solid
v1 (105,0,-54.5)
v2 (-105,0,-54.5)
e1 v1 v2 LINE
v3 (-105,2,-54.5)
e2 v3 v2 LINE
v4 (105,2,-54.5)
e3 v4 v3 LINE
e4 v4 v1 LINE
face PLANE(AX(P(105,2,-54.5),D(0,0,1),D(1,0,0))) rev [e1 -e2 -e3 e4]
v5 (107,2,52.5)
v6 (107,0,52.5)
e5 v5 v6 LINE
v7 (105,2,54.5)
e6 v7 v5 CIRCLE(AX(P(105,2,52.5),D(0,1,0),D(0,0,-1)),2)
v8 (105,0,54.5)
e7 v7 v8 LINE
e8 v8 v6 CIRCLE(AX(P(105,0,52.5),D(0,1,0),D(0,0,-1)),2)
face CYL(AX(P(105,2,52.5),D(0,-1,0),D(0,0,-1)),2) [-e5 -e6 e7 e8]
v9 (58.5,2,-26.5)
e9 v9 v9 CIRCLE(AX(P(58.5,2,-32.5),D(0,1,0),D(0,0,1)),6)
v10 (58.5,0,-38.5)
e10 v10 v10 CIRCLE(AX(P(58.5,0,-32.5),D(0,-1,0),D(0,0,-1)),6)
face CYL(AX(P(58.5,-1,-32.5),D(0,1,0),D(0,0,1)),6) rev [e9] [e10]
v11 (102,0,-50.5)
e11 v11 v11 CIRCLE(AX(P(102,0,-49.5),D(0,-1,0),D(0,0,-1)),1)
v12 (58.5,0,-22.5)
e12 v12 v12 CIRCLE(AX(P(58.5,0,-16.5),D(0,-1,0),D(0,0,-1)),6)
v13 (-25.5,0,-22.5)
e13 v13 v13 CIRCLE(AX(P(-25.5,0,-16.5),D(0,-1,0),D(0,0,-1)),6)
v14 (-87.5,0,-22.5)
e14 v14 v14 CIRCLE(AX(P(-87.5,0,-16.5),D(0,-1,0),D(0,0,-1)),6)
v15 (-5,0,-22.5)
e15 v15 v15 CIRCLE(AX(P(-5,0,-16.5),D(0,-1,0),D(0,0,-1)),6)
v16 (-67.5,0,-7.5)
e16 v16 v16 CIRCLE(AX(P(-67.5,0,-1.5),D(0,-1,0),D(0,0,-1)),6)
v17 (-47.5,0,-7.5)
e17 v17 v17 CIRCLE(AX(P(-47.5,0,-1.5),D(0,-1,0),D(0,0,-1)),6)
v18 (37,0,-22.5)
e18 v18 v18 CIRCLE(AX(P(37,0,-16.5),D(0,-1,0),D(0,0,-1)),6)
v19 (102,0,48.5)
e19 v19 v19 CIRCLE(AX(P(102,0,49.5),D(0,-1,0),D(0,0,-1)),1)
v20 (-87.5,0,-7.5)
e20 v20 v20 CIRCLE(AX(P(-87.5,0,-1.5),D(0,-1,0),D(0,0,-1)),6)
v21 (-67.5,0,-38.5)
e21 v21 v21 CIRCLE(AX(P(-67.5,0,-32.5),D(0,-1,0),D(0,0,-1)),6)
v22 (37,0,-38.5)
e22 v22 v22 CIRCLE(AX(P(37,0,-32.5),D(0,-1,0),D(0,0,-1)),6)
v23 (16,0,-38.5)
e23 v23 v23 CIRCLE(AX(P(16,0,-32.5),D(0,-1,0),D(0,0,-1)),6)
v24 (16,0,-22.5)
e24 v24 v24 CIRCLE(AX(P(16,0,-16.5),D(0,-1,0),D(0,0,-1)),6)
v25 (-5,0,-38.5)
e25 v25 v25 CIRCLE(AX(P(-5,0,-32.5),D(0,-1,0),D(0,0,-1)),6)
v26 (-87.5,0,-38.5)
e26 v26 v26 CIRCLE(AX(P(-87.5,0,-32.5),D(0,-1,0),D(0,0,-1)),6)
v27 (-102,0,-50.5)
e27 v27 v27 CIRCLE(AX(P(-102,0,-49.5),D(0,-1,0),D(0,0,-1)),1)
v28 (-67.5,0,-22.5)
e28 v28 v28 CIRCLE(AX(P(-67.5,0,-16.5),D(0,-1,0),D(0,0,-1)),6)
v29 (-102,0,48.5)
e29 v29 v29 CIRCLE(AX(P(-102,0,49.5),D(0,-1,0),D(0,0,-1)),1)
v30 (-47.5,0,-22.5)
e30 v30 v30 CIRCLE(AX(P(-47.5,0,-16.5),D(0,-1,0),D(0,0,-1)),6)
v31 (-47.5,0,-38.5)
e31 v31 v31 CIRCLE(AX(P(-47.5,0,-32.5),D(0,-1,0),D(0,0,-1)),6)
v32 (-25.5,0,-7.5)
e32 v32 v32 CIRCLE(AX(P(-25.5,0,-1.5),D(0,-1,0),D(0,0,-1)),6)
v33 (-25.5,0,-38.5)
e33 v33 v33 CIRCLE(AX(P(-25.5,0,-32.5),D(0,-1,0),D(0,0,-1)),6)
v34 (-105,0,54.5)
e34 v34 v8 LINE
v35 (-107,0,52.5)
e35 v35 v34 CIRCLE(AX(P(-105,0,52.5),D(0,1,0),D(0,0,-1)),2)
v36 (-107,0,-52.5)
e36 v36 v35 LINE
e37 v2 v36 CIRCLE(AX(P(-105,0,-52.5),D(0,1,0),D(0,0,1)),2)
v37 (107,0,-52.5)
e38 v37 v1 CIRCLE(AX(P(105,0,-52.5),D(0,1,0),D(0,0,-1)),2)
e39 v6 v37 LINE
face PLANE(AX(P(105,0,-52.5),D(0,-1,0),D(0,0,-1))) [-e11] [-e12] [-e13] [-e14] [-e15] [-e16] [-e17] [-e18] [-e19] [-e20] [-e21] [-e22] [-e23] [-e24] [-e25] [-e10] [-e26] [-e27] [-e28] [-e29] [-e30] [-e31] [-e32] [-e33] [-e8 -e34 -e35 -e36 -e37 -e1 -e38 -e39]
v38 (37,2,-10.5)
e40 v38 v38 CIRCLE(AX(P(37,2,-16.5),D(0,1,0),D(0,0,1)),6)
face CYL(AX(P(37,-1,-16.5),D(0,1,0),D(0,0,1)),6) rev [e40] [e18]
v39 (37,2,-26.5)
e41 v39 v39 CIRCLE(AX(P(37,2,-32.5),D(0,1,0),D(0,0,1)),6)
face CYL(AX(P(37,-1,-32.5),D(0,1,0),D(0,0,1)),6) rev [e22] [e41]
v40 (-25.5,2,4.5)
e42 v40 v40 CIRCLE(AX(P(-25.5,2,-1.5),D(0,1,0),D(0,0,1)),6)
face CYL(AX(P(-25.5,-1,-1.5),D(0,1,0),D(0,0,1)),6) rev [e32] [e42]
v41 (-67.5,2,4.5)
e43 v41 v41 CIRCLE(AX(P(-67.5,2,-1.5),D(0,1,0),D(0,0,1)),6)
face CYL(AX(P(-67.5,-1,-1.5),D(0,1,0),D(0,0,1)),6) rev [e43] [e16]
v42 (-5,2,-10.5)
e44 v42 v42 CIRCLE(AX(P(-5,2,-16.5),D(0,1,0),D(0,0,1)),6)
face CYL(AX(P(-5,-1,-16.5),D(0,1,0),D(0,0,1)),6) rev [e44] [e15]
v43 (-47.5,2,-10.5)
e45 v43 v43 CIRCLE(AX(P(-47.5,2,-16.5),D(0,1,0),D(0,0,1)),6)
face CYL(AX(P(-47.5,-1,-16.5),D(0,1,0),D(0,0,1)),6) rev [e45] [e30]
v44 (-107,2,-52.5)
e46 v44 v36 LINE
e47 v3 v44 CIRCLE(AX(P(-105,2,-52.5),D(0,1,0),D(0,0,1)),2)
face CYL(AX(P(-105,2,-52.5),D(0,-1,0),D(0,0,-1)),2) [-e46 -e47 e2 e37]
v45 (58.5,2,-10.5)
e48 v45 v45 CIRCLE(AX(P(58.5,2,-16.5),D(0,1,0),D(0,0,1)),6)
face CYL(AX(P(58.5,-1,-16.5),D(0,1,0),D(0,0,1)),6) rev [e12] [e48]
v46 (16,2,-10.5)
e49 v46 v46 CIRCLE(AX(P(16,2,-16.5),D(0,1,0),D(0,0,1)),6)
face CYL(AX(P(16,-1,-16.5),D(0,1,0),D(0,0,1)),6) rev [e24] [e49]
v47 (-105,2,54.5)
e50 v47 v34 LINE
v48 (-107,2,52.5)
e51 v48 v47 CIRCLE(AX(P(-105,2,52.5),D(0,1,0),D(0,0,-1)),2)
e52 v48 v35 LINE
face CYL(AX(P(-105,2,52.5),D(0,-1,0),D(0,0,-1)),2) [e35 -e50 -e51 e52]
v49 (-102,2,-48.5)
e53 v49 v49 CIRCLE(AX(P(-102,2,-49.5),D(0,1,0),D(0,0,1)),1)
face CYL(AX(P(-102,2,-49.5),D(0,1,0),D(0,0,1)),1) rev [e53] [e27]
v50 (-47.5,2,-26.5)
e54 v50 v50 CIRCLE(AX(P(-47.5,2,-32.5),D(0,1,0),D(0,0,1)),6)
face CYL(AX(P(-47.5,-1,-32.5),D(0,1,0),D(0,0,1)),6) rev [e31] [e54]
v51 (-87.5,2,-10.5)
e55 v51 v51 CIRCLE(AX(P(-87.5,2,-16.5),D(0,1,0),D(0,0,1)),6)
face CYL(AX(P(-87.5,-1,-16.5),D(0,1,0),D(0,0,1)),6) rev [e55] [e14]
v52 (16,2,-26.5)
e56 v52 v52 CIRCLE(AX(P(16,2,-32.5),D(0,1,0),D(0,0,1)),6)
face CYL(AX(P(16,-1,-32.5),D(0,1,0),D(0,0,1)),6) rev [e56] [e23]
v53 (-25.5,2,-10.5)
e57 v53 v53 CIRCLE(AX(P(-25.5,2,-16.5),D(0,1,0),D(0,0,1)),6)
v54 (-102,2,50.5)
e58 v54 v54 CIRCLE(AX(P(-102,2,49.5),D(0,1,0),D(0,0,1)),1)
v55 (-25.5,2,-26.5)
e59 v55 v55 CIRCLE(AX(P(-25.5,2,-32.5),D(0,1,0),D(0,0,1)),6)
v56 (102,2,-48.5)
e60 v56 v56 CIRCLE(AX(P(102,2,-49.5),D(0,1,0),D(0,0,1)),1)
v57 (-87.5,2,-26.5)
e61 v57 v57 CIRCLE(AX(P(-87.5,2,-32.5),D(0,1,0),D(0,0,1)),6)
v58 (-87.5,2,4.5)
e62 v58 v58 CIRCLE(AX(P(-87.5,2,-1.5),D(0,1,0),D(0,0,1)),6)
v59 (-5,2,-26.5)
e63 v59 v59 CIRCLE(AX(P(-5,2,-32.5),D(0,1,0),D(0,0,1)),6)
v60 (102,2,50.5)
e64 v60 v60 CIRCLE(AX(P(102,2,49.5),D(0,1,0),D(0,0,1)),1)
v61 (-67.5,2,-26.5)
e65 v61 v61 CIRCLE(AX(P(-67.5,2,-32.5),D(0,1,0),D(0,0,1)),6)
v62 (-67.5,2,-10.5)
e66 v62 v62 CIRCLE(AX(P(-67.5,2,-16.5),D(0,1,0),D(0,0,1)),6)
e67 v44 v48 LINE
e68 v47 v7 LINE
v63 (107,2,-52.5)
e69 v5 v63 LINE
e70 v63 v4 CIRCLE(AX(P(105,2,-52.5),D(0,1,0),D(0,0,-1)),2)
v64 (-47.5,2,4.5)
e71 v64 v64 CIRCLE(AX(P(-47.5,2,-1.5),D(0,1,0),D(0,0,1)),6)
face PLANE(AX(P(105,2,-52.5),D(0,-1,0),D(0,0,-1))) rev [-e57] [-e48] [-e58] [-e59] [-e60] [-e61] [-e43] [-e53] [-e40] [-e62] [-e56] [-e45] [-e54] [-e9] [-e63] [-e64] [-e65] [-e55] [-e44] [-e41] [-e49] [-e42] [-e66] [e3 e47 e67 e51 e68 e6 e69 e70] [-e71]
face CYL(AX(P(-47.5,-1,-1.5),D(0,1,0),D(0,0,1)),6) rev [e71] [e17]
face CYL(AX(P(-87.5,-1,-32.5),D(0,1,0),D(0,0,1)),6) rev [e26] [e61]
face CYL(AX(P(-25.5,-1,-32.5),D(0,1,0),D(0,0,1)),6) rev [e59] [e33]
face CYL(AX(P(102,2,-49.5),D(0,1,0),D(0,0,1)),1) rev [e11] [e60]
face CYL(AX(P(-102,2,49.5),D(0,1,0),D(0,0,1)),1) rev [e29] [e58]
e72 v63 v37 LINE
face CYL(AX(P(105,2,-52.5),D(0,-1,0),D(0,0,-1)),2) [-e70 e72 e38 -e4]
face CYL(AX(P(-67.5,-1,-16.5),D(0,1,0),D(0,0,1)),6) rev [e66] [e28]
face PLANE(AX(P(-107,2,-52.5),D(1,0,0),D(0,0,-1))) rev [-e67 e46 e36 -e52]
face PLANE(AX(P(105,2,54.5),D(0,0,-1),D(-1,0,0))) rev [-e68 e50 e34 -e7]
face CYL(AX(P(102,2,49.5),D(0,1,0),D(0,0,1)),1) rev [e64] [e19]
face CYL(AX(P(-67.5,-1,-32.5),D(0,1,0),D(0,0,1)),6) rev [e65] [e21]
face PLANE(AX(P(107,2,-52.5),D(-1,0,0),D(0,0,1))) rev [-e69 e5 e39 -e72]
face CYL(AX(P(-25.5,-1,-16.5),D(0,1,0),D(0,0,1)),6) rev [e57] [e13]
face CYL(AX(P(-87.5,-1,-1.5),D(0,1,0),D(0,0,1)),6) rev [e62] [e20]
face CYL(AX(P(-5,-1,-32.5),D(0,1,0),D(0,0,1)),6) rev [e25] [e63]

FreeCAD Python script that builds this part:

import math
import FreeCAD as App
import Part
import Sketcher
from FreeCAD import Vector

doc = App.newDocument("Part")
body = doc.addObject("PartDesign::Body", "Body")

sketch1 = body.newObject("Sketcher::SketchObject", "Sketch")
sketch1.AttachmentSupport = (doc.getObject("XZ_Plane"), [""])
sketch1.MapMode = "FlatFace"
sketch1.addGeometry([
    Part.LineSegment(Vector(105, -54.5, 0), Vector(-105, -54.5, 0)),
    Part.ArcOfCircle(Part.Circle(Vector(-105, -52.5, 0), Vector(0, 0, 1), 2), math.radians(-180), math.radians(-90)),
    Part.LineSegment(Vector(-107, -52.5, 0), Vector(-107, 52.5, 0)),
    Part.ArcOfCircle(Part.Circle(Vector(-105, 52.5, 0), Vector(0, 0, 1), 2), math.radians(90), math.radians(180)),
    Part.LineSegment(Vector(-105, 54.5, 0), Vector(105, 54.5, 0)),
    Part.ArcOfCircle(Part.Circle(Vector(105, 52.5, 0), Vector(0, 0, 1), 2), math.radians(0), math.radians(90)),
    Part.LineSegment(Vector(107, 52.5, 0), Vector(107, -52.5, 0)),
    Part.ArcOfCircle(Part.Circle(Vector(105, -52.5, 0), Vector(0, 0, 1), 2), math.radians(-90), math.radians(0)),
], False)
sketch1.addConstraint([
    Sketcher.Constraint("Tangent", 0, 2, 1, 2),
    Sketcher.Constraint("Tangent", 1, 1, 2, 1),
    Sketcher.Constraint("Tangent", 2, 2, 3, 2),
    Sketcher.Constraint("Tangent", 3, 1, 4, 1),
    Sketcher.Constraint("Tangent", 4, 2, 5, 2),
    Sketcher.Constraint("Tangent", 5, 1, 6, 1),
    Sketcher.Constraint("Tangent", 6, 2, 7, 2),
    Sketcher.Constraint("Tangent", 7, 1, 0, 1),
    Sketcher.Constraint("Horizontal", 0),
    Sketcher.Constraint("Vertical", 2),
    Sketcher.Constraint("Horizontal", 4),
    Sketcher.Constraint("Vertical", 6),
    Sketcher.Constraint("Equal", 1, 3),
    Sketcher.Constraint("Equal", 3, 5),
    Sketcher.Constraint("Equal", 5, 7),
    Sketcher.Constraint("Symmetric", 1, 3, 5, 3, -1, 1),
    Sketcher.Constraint("Radius", 1, 2.0),
    Sketcher.Constraint("DistanceX", 0, 2, 0, 1, 210.0),
    Sketcher.Constraint("DistanceY", 2, 1, 2, 2, 105.0),
])
pad1 = body.newObject("PartDesign::Pad", "Pad")
pad1.Profile = sketch1
pad1.Length = 2
pad1.Reversed = True

sketch2 = body.newObject("Sketcher::SketchObject", "Sketch001")
sketch2.AttachmentSupport = (doc.getObject("XZ_Plane"), [""])
sketch2.MapMode = "FlatFace"
sketch2.AttachmentOffset = App.Placement(Vector(0, 0, -2), App.Rotation())
sketch2.addGeometry([
    Part.Circle(Vector(-87.5, -32.5, 0), Vector(0, 0, 1), 6),
    Part.Circle(Vector(-67.5, -32.5, 0), Vector(0, 0, 1), 6),
    Part.Circle(Vector(-47.5, -32.5, 0), Vector(0, 0, 1), 6),
    Part.Circle(Vector(-25.5, -32.5, 0), Vector(0, 0, 1), 6),
    Part.Circle(Vector(-5, -32.5, 0), Vector(0, 0, 1), 6),
    Part.Circle(Vector(16, -32.5, 0), Vector(0, 0, 1), 6),
    Part.Circle(Vector(37, -32.5, 0), Vector(0, 0, 1), 6),
    Part.Circle(Vector(58.5, -32.5, 0), Vector(0, 0, 1), 6),
    Part.Circle(Vector(-87.5, -16.5, 0), Vector(0, 0, 1), 6),
    Part.Circle(Vector(-67.5, -16.5, 0), Vector(0, 0, 1), 6),
    Part.Circle(Vector(-47.5, -16.5, 0), Vector(0, 0, 1), 6),
    Part.Circle(Vector(-25.5, -16.5, 0), Vector(0, 0, 1), 6),
    Part.Circle(Vector(-5, -16.5, 0), Vector(0, 0, 1), 6),
    Part.Circle(Vector(16, -16.5, 0), Vector(0, 0, 1), 6),
    Part.Circle(Vector(37, -16.5, 0), Vector(0, 0, 1), 6),
    Part.Circle(Vector(58.5, -16.5, 0), Vector(0, 0, 1), 6),
    Part.Circle(Vector(-67.5, -1.5, 0), Vector(0, 0, 1), 6),
    Part.Circle(Vector(-87.5, -1.5, 0), Vector(0, 0, 1), 6),
    Part.Circle(Vector(-47.5, -1.5, 0), Vector(0, 0, 1), 6),
    Part.Circle(Vector(-25.5, -1.5, 0), Vector(0, 0, 1), 6),
], False)
sketch2.addConstraint([
    Sketcher.Constraint("Equal", 0, 1),
    Sketcher.Constraint("Equal", 1, 2),
    Sketcher.Constraint("Equal", 2, 3),
    Sketcher.Constraint("Equal", 3, 4),
    Sketcher.Constraint("Equal", 4, 5),
    Sketcher.Constraint("Equal", 5, 6),
    Sketcher.Constraint("Equal", 6, 7),
    Sketcher.Constraint("Equal", 7, 8),
    Sketcher.Constraint("Equal", 8, 9),
    Sketcher.Constraint("Equal", 9, 10),
    Sketcher.Constraint("Equal", 10, 11),
    Sketcher.Constraint("Equal", 11, 12),
    Sketcher.Constraint("Equal", 12, 13),
    Sketcher.Constraint("Equal", 13, 14),
    Sketcher.Constraint("Equal", 14, 15),
    Sketcher.Constraint("Equal", 15, 16),
    Sketcher.Constraint("Equal", 16, 17),
    Sketcher.Constraint("Equal", 17, 18),
    Sketcher.Constraint("Equal", 18, 19),
    Sketcher.Constraint("Horizontal", 0, 3, 1, 3),
    Sketcher.Constraint("Horizontal", 1, 3, 2, 3),
    Sketcher.Constraint("Horizontal", 2, 3, 3, 3),
    Sketcher.Constraint("Horizontal", 3, 3, 4, 3),
    Sketcher.Constraint("Horizontal", 4, 3, 5, 3),
    Sketcher.Constraint("Horizontal", 5, 3, 6, 3),
    Sketcher.Constraint("Horizontal", 6, 3, 7, 3),
    Sketcher.Constraint("Horizontal", 8, 3, 9, 3),
    Sketcher.Constraint("Horizontal", 9, 3, 10, 3),
    Sketcher.Constraint("Horizontal", 10, 3, 11, 3),
    Sketcher.Constraint("Horizontal", 11, 3, 12, 3),
    Sketcher.Constraint("Horizontal", 12, 3, 13, 3),
    Sketcher.Constraint("Horizontal", 13, 3, 14, 3),
    Sketcher.Constraint("Horizontal", 14, 3, 15, 3),
    Sketcher.Constraint("Horizontal", 16, 3, 17, 3),
    Sketcher.Constraint("Horizontal", 17, 3, 18, 3),
    Sketcher.Constraint("Horizontal", 18, 3, 19, 3),
    Sketcher.Constraint("Vertical", 0, 3, 8, 3),
    Sketcher.Constraint("Vertical", 1, 3, 9, 3),
    Sketcher.Constraint("Vertical", 2, 3, 10, 3),
    Sketcher.Constraint("Vertical", 3, 3, 11, 3),
    Sketcher.Constraint("Vertical", 4, 3, 12, 3),
    Sketcher.Constraint("Vertical", 5, 3, 13, 3),
    Sketcher.Constraint("Vertical", 6, 3, 14, 3),
    Sketcher.Constraint("Vertical", 7, 3, 15, 3),
    Sketcher.Constraint("Vertical", 9, 3, 16, 3),
    Sketcher.Constraint("Vertical", 8, 3, 17, 3),
    Sketcher.Constraint("Vertical", 10, 3, 18, 3),
    Sketcher.Constraint("Vertical", 11, 3, 19, 3),
    Sketcher.Constraint("Diameter", 0, 12.0),
    Sketcher.Constraint("DistanceX", 4, 3, -1, 1, 5.0),
    Sketcher.Constraint("DistanceX", -1, 1, 5, 3, 16.0),
    Sketcher.Constraint("DistanceX", -1, 1, 6, 3, 37.0),
    Sketcher.Constraint("DistanceX", 0, 3, 1, 3, 20.0),
    Sketcher.Constraint("DistanceX", 1, 3, 2, 3, 20.0),
    Sketcher.Constraint("DistanceX", 2, 3, 3, 3, 22.0),
    Sketcher.Constraint("DistanceX", 3, 3, 7, 3, 84.0),
    Sketcher.Constraint("DistanceY", 0, 3, 8, 3, 16.0),
    Sketcher.Constraint("DistanceY", 9, 3, 16, 3, 15.0),
    Sketcher.Constraint("DistanceX", 0, 3, -1, 1, 87.5),
    Sketcher.Constraint("DistanceY", 0, 3, -1, 1, 32.5),
])
pocket1 = body.newObject("PartDesign::Pocket", "Pocket")
pocket1.Profile = sketch2
pocket1.Length = 3
pocket1.Reversed = True

sketch3 = body.newObject("Sketcher::SketchObject", "Sketch002")
sketch3.AttachmentSupport = (doc.getObject("XZ_Plane"), [""])
sketch3.MapMode = "FlatFace"
sketch3.AttachmentOffset = App.Placement(Vector(0, 0, -2), App.Rotation())
sketch3.addGeometry([
    Part.Circle(Vector(-102, -49.5, 0), Vector(0, 0, 1), 1),
    Part.Circle(Vector(102, -49.5, 0), Vector(0, 0, 1), 1),
    Part.Circle(Vector(102, 49.5, 0), Vector(0, 0, 1), 1),
    Part.Circle(Vector(-102, 49.5, 0), Vector(0, 0, 1), 1),
], False)
sketch3.addConstraint([
    Sketcher.Constraint("Equal", 0, 1),
    Sketcher.Constraint("Equal", 1, 2),
    Sketcher.Constraint("Equal", 2, 3),
    Sketcher.Constraint("Symmetric", 0, 3, 2, 3, -1, 1),
    Sketcher.Constraint("Symmetric", 1, 3, 3, 3, -1, 1),
    Sketcher.Constraint("Symmetric", 0, 3, 1, 3, -2),
    Sketcher.Constraint("Diameter", 0, 2.0),
    Sketcher.Constraint("DistanceX", 0, 3, -1, 1, 102.0),
    Sketcher.Constraint("DistanceY", 1, 3, 2, 3, 99.0),
])
doc.recompute()
hole = body.newObject("PartDesign::Hole", "Hole")
hole.Profile = sketch3
hole.ThreadType = "None"
hole.Diameter = 2
hole.DepthType = "Dimension"
hole.Depth = 8
hole.DrillPoint = "Angled"
hole.DrillPointAngle = 118
hole.Reversed = True

doc.recompute()
